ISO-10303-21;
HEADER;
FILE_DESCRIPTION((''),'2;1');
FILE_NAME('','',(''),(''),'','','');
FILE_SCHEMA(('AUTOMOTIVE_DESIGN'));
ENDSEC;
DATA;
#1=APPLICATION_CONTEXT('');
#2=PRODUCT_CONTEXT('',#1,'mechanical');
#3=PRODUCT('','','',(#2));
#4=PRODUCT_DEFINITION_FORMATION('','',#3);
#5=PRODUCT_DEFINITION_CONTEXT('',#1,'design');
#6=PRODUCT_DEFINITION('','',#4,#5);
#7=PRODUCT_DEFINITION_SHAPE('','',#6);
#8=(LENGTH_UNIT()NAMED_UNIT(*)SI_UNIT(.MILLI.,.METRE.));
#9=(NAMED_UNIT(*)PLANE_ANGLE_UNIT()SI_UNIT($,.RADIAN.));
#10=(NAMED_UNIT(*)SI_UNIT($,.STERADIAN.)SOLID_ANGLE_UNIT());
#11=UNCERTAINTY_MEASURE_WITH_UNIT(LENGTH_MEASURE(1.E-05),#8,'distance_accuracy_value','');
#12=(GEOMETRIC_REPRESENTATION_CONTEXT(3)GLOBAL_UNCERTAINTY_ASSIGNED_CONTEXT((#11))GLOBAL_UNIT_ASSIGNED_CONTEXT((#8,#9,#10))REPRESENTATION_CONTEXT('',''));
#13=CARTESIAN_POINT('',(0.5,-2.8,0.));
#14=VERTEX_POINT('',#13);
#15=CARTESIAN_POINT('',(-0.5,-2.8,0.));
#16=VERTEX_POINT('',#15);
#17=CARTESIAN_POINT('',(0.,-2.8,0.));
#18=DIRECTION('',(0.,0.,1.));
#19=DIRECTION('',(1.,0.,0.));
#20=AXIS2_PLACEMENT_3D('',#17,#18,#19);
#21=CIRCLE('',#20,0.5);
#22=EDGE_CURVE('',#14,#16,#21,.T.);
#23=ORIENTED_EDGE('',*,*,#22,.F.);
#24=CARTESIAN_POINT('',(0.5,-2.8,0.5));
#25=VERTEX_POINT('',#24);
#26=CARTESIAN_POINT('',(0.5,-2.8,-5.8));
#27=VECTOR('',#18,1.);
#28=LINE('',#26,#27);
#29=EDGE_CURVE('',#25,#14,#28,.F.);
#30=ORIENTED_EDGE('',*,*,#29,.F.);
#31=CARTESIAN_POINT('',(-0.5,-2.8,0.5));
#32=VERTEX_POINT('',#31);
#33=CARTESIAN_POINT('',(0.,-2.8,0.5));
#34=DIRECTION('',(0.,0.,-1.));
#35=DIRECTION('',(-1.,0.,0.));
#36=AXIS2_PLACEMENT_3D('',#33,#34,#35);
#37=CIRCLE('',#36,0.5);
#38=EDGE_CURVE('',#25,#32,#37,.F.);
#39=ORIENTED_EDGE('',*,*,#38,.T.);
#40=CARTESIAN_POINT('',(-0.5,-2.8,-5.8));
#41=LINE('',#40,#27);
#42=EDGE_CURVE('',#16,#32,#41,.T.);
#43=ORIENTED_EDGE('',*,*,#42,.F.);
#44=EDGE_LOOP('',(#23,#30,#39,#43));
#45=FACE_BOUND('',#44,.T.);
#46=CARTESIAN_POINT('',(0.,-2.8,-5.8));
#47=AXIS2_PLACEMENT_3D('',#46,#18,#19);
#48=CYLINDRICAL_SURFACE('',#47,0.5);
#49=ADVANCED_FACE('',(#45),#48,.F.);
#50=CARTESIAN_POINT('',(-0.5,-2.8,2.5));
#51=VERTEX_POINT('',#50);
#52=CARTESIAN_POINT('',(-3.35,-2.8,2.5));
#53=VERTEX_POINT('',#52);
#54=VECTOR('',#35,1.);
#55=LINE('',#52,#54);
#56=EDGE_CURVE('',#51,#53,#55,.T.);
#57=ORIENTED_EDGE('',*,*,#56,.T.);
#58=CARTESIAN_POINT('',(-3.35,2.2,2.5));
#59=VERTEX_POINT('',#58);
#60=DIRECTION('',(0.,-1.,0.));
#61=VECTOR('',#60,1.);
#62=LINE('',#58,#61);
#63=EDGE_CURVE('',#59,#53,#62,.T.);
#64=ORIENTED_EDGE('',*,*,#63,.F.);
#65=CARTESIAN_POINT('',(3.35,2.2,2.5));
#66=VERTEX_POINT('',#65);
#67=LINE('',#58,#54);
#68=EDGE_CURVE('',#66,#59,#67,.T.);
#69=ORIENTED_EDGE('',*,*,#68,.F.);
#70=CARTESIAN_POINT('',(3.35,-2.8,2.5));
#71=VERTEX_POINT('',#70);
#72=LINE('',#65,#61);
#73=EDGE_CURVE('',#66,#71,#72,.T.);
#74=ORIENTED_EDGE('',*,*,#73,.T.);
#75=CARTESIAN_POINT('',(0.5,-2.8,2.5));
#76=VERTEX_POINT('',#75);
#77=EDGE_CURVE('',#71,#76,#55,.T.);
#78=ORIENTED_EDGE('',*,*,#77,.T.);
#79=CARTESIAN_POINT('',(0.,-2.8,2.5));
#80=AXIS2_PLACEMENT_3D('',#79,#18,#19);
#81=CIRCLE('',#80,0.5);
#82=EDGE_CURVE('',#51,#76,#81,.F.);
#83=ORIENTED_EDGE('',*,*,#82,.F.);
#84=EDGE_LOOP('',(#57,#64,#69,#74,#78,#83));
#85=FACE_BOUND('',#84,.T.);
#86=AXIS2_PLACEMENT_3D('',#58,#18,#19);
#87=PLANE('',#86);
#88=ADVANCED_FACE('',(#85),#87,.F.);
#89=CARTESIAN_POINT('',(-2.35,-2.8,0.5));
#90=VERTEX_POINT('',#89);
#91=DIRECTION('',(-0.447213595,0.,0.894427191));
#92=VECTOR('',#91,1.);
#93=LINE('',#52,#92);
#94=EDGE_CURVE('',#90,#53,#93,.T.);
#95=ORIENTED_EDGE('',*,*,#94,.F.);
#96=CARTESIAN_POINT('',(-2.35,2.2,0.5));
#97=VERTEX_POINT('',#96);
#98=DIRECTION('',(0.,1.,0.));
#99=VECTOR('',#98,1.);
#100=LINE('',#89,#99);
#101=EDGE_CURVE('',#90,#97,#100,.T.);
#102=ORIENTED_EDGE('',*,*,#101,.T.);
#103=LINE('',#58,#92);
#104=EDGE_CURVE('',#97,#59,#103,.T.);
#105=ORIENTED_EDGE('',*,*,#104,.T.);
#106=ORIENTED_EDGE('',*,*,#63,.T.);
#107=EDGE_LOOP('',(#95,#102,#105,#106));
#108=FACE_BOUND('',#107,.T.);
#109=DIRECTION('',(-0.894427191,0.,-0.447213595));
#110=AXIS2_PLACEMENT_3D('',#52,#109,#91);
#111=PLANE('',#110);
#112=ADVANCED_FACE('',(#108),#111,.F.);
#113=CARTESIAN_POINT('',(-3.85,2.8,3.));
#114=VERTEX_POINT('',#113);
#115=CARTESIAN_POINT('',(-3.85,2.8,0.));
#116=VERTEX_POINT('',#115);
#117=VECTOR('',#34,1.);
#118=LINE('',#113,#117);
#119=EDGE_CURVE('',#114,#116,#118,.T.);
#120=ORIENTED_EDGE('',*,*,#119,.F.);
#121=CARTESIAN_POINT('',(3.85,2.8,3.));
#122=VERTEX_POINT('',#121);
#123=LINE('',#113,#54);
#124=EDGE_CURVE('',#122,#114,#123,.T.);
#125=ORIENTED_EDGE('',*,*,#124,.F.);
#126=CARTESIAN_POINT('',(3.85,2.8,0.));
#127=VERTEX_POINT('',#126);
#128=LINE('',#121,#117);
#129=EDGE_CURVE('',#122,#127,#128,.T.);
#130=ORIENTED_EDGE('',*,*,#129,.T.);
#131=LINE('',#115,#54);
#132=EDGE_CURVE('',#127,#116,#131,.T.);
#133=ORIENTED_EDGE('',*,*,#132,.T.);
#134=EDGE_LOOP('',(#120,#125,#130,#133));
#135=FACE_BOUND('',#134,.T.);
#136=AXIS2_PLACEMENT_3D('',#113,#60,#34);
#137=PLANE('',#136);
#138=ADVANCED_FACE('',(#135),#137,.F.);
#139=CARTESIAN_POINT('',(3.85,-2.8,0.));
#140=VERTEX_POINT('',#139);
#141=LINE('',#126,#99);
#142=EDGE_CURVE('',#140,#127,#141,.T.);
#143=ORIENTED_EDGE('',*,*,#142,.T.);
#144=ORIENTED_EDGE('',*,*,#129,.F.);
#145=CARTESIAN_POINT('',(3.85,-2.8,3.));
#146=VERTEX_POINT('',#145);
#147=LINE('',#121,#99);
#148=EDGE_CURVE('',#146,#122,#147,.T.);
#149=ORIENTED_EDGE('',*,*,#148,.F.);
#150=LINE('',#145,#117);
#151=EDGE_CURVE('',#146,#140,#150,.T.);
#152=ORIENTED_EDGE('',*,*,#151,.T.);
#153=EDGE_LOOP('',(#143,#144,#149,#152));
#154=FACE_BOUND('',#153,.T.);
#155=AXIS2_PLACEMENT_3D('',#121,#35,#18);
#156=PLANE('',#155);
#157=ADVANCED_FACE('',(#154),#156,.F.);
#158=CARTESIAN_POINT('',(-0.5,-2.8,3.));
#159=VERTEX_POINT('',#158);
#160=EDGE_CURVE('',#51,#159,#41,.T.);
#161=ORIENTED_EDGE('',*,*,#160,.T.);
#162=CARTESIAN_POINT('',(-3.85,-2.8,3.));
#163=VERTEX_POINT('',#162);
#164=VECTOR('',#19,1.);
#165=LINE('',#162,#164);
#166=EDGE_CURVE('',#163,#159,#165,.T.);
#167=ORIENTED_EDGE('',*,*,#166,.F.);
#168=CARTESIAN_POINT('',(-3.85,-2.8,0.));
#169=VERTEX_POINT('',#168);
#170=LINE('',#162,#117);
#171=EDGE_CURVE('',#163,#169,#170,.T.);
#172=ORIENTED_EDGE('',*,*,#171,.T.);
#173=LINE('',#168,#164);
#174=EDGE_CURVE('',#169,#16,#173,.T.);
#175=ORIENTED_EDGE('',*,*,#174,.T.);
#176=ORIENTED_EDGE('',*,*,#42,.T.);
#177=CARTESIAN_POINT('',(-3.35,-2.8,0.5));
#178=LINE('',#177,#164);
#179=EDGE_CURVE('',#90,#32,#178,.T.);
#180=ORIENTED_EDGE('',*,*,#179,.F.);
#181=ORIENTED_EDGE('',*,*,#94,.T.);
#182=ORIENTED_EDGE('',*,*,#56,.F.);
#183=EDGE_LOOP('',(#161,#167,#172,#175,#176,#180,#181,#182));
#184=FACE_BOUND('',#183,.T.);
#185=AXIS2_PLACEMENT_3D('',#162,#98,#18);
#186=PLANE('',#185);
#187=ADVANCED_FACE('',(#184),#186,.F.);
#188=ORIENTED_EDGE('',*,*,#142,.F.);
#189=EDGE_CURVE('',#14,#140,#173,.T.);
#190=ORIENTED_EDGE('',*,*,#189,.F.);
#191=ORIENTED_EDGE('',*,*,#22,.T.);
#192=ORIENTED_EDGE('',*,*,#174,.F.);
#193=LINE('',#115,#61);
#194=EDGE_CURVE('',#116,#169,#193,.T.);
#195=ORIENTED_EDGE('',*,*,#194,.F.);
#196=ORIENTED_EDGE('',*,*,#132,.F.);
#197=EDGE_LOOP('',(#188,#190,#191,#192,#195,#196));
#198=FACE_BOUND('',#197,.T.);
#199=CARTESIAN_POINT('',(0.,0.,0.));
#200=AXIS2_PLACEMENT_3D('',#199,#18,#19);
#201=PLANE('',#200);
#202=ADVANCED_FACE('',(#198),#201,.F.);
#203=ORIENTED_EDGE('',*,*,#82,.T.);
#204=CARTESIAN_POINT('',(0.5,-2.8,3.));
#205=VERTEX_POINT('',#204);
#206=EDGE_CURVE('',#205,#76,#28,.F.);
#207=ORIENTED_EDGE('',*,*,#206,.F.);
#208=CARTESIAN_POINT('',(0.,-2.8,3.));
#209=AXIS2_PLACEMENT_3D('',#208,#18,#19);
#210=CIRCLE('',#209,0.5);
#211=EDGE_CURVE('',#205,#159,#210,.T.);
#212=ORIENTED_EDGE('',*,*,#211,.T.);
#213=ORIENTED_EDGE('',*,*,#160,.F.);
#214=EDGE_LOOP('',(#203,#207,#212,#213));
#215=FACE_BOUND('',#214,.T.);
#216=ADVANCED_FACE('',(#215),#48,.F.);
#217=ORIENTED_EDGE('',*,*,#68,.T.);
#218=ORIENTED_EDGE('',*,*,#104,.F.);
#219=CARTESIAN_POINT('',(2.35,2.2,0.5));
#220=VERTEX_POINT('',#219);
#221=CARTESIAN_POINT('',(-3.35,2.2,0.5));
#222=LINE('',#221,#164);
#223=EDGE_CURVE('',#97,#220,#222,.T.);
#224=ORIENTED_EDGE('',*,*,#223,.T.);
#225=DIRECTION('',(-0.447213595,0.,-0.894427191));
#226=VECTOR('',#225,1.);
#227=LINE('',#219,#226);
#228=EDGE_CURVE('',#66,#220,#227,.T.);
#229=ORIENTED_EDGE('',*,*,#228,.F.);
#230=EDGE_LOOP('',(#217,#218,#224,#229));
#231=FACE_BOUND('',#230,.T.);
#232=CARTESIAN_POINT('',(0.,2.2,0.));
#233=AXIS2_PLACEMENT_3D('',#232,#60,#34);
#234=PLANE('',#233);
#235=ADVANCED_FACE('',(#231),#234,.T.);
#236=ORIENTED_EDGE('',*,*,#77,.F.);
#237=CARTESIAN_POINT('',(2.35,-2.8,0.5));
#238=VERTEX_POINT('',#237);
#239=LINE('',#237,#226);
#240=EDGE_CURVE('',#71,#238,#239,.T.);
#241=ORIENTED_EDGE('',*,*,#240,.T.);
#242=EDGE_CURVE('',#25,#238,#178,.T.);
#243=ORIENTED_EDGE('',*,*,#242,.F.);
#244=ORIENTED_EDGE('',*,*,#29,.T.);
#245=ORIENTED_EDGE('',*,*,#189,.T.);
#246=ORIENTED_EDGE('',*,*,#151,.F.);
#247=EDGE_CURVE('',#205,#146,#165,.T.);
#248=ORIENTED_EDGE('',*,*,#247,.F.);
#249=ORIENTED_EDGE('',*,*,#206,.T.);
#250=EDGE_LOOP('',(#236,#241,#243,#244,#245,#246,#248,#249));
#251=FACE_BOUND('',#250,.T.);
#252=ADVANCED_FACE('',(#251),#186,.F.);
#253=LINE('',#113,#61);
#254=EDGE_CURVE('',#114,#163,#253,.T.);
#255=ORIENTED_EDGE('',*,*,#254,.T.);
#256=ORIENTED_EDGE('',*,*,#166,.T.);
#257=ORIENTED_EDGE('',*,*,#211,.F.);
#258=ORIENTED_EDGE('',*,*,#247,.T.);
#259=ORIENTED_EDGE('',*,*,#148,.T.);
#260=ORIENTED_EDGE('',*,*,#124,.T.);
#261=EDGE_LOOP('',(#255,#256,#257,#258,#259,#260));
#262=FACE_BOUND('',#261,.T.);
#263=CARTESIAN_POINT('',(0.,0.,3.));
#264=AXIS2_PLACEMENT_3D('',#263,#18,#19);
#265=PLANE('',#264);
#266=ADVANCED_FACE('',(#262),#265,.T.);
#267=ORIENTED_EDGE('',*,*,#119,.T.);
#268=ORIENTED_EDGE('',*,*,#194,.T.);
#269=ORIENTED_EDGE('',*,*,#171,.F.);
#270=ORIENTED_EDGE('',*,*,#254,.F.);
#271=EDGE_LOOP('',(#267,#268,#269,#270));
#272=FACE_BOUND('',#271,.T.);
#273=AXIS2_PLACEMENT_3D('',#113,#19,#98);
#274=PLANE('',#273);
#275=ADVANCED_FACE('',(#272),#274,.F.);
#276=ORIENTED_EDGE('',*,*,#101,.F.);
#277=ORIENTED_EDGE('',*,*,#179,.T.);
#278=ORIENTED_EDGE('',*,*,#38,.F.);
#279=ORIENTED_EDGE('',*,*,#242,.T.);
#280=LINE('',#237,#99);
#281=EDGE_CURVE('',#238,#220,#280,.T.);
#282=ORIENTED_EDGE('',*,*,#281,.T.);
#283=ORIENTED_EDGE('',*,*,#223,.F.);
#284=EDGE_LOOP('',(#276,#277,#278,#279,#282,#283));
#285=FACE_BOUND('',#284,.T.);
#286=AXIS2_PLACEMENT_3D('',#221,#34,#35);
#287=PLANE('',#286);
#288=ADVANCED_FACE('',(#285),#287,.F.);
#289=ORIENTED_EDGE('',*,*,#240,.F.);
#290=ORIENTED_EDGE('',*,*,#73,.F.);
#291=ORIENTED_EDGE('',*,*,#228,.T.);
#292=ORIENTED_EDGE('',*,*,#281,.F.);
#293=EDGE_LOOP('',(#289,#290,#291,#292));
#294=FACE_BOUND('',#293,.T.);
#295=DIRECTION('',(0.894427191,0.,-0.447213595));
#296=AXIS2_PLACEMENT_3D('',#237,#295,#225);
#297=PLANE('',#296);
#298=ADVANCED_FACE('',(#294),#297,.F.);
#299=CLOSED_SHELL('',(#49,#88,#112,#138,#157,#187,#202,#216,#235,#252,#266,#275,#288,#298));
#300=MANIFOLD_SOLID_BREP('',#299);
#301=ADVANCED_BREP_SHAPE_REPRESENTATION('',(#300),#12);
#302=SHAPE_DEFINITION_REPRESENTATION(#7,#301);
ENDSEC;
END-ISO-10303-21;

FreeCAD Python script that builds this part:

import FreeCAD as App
import Part
import Sketcher

V = App.Vector
Q = App.Units.Quantity


def add_polygon(sketch, points):
    """Adds a closed chain of lines whose ends are joined by coincident constraints."""
    first, n = sketch.GeometryCount, len(points)
    for a, b in zip(points, points[1:] + points[:1]):
        sketch.addGeometry(Part.LineSegment(App.Vector(*a, 0), App.Vector(*b, 0)), False)
    for i in range(n):
        sketch.addConstraint(Sketcher.Constraint("Coincident", first + i, 2, first + (i + 1) % n, 1))

doc = App.newDocument("Part")
body = doc.addObject("PartDesign::Body", "Body")

# Sketch on XY plane
sketch1 = body.newObject("Sketcher::SketchObject", "Sketch")
sketch1.AttachmentSupport = (doc.getObject("XY_Plane"), [""])
sketch1.MapMode = "FlatFace"
add_polygon(sketch1, [(-3.85, 2.8), (-3.85, -2.8), (3.85, -2.8), (3.85, 2.8)])  # lines 0-3
sketch1.addConstraint([
    Sketcher.Constraint("Vertical", 0),
    Sketcher.Constraint("Horizontal", 1),
    Sketcher.Constraint("Vertical", 2),
    Sketcher.Constraint("Horizontal", 3),
    Sketcher.Constraint("Symmetric", 0, 2, 2, 2, -1, 1),
    Sketcher.Constraint("DistanceX", 1, 1, 1, 2, Q("7.7 mm")),
    Sketcher.Constraint("DistanceY", 0, 2, 0, 1, Q("5.6 mm")),
])
pad1 = body.newObject("PartDesign::Pad", "Pad")
pad1.Profile = sketch1
pad1.Length = 3

# Sketch on XY plane
sketch2 = body.newObject("Sketcher::SketchObject", "Sketch001")
sketch2.AttachmentSupport = (doc.getObject("XY_Plane"), [""])
sketch2.MapMode = "FlatFace"
sketch2.AttachmentOffset = App.Placement(V(0, 0, 3), App.Rotation())
sketch2.addGeometry(Part.Circle(V(0, -2.8, 0), V(0, 0, 1), 0.5), False)
sketch2.addConstraint([
    Sketcher.Constraint("PointOnObject", 0, 3, -2),
    Sketcher.Constraint("Diameter", 0, Q("1 mm")),
    Sketcher.Constraint("DistanceY", 0, 3, -1, 1, Q("2.8 mm")),
])
pocket1 = body.newObject("PartDesign::Pocket", "Pocket")
pocket1.Profile = sketch2
pocket1.Length = 8.8

# Sketch on XZ plane
sketch3 = body.newObject("Sketcher::SketchObject", "Sketch002")
sketch3.AttachmentSupport = (doc.getObject("XZ_Plane"), [""])
sketch3.MapMode = "FlatFace"
sketch3.AttachmentOffset = App.Placement(V(0, 0, 2.8), App.Rotation())
add_polygon(sketch3, [(-3.35, 2.5), (-3.35, 0.5), (3.35, 0.5), (3.35, 2.5)])  # lines 0-3
sketch3.addConstraint([
    Sketcher.Constraint("Vertical", 0),
    Sketcher.Constraint("Horizontal", 1),
    Sketcher.Constraint("Vertical", 2),
    Sketcher.Constraint("Horizontal", 3),
    Sketcher.Constraint("DistanceY", 0, 2, 0, 1, Q("2 mm")),
    Sketcher.Constraint("DistanceX", 1, 1, 1, 2, Q("6.7 mm")),
    Sketcher.Constraint("DistanceY", -1, 1, 0, 2, Q("0.5 mm")),
    Sketcher.Constraint("DistanceX", 0, 2, -1, 1, Q("3.35 mm")),
])
pocket2 = body.newObject("PartDesign::Pocket", "Pocket001")
pocket2.Profile = sketch3
pocket2.Length = 5

# Sketch on XZ plane
sketch4 = body.newObject("Sketcher::SketchObject", "Sketch003")
sketch4.AttachmentSupport = (doc.getObject("XZ_Plane"), [""])
sketch4.MapMode = "FlatFace"
sketch4.AttachmentOffset = App.Placement(V(0, 0, -2.2), App.Rotation())
add_polygon(sketch4, [(-2.35, 0.5), (-3.35, 2.5), (-3.35, 0.5)])  # lines 0-2
add_polygon(sketch4, [(3.35, 0.5), (3.35, 2.5), (2.35, 0.5)])  # lines 3-5
sketch4.addConstraint([
    Sketcher.Constraint("Vertical", 1),
    Sketcher.Constraint("Horizontal", 2),
    Sketcher.Constraint("Vertical", 3),
    Sketcher.Constraint("Horizontal", 5),
    Sketcher.Constraint("Symmetric", 0, 2, 3, 2, -2),
    Sketcher.Constraint("Symmetric", 2, 2, 4, 2, -2),
    Sketcher.Constraint("DistanceX", 2, 1, 2, 2, Q("1 mm")),
    Sketcher.Constraint("DistanceY", 1, 2, 1, 1, Q("2 mm")),
    Sketcher.Constraint("DistanceY", -1, 1, 0, 2, Q("2.5 mm")),
    Sketcher.Constraint("DistanceX", 2, 2, 3, 2, Q("5.7 mm")),
])
pad2 = body.newObject("PartDesign::Pad", "Pad001")
pad2.Profile = sketch4
pad2.Length = 5

doc.recompute()
